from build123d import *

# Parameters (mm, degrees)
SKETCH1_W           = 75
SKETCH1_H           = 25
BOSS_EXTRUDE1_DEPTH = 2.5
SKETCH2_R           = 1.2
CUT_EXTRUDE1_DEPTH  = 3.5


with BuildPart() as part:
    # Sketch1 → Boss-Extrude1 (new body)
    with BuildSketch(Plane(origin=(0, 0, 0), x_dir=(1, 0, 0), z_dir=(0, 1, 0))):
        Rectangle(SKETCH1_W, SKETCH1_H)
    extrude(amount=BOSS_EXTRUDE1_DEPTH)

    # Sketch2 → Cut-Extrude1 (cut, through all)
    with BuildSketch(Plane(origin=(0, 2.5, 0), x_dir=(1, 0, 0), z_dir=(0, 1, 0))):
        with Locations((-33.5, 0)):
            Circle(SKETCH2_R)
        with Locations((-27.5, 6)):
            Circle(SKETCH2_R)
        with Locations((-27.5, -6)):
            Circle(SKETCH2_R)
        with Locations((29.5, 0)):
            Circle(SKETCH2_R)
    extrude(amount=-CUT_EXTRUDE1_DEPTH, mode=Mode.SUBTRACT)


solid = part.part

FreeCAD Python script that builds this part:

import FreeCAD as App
import Part
import Sketcher
Q = App.Units.Quantity

doc = App.newDocument("Part")
params = doc.addObject("Spreadsheet::Sheet", "Params")
for row, (alias, value) in enumerate([
    ("sketch1_width", "75 mm"),
    ("sketch1_height", "25 mm"),
    ("pad1_length", "2.5 mm"),
    ("sketch2_diameter", "2.4 mm"),
], start=1):
    params.set(f"A{row}", alias)
    params.set(f"B{row}", "=" + value)
    params.setAlias(f"B{row}", alias)

body = doc.addObject("PartDesign::Body", "Body")

# Sketch on XZ plane
sketch1 = body.newObject("Sketcher::SketchObject", "Sketch")
sketch1.AttachmentSupport = (doc.getObject("XZ_Plane"), [""])
sketch1.MapMode = "FlatFace"
sketch1.addGeometry([
    Part.LineSegment(App.Vector(-38, -12, 0), App.Vector(-38, 12, 0)),
    Part.LineSegment(App.Vector(-38, 12, 0), App.Vector(38, 12, 0)),
    Part.LineSegment(App.Vector(38, 12, 0), App.Vector(38, -12, 0)),
    Part.LineSegment(App.Vector(38, -12, 0), App.Vector(-38, -12, 0)),
], False)
sketch1.addConstraint([
    Sketcher.Constraint("Coincident", 0, 2, 1, 1),
    Sketcher.Constraint("Coincident", 1, 2, 2, 1),
    Sketcher.Constraint("Coincident", 2, 2, 3, 1),
    Sketcher.Constraint("Coincident", 3, 2, 0, 1),
    Sketcher.Constraint("Vertical", 0),
    Sketcher.Constraint("Horizontal", 1),
    Sketcher.Constraint("Vertical", 2),
    Sketcher.Constraint("Horizontal", 3),
    Sketcher.Constraint("Symmetric", 0, 2, 2, 2, -1, 1),
    Sketcher.Constraint("DistanceX", 1, 1, 1, 2, Q("75 mm")),
    Sketcher.Constraint("DistanceY", 0, 1, 0, 2, Q("25 mm")),
])
sketch1.setExpression("Constraints[9]", "Params.sketch1_width")
sketch1.setExpression("Constraints[10]", "Params.sketch1_height")
pad1 = body.newObject("PartDesign::Pad", "Pad")
pad1.Profile = sketch1
pad1.setExpression("Length", "Params.pad1_length")
pad1.Reversed = True

# Sketch on XZ plane
sketch2 = body.newObject("Sketcher::SketchObject", "Sketch001")
sketch2.AttachmentSupport = (doc.getObject("XZ_Plane"), [""])
sketch2.MapMode = "FlatFace"
sketch2.AttachmentOffset = App.Placement(App.Vector(0, 0, -2.5), App.Rotation())
sketch2.addGeometry([
    Part.Circle(App.Vector(-33.5, 0, 0), App.Vector(0, 0, 1), 1.2),
    Part.Circle(App.Vector(-27.5, -6, 0), App.Vector(0, 0, 1), 1.2),
    Part.Circle(App.Vector(-27.5, 6, 0), App.Vector(0, 0, 1), 1.2),
    Part.Circle(App.Vector(29.5, 0, 0), App.Vector(0, 0, 1), 1.2),
], False)
sketch2.addConstraint([
    Sketcher.Constraint("Equal", 0, 1),
    Sketcher.Constraint("Equal", 1, 2),
    Sketcher.Constraint("Equal", 2, 3),
    Sketcher.Constraint("Symmetric", 1, 3, 2, 3, -1),
    Sketcher.Constraint("PointOnObject", 0, 3, -1),
    Sketcher.Constraint("PointOnObject", 3, 3, -1),
    Sketcher.Constraint("Diameter", 0, Q("2.4 mm")),
    Sketcher.Constraint("DistanceY", 1, 3, -1, 1, Q("6 mm")),
    Sketcher.Constraint("DistanceX", 0, 3, 1, 3, Q("6 mm")),
    Sketcher.Constraint("DistanceX", 1, 3, 3, 3, Q("57 mm")),
    Sketcher.Constraint("DistanceX", 0, 3, -1, 1, Q("33.5 mm")),
])
sketch2.setExpression("Constraints[6]", "Params.sketch2_diameter")
pocket1 = body.newObject("PartDesign::Pocket", "Pocket")
pocket1.Profile = sketch2
pocket1.Type = "ThroughAll"
pocket1.Reversed = True

doc.recompute()
